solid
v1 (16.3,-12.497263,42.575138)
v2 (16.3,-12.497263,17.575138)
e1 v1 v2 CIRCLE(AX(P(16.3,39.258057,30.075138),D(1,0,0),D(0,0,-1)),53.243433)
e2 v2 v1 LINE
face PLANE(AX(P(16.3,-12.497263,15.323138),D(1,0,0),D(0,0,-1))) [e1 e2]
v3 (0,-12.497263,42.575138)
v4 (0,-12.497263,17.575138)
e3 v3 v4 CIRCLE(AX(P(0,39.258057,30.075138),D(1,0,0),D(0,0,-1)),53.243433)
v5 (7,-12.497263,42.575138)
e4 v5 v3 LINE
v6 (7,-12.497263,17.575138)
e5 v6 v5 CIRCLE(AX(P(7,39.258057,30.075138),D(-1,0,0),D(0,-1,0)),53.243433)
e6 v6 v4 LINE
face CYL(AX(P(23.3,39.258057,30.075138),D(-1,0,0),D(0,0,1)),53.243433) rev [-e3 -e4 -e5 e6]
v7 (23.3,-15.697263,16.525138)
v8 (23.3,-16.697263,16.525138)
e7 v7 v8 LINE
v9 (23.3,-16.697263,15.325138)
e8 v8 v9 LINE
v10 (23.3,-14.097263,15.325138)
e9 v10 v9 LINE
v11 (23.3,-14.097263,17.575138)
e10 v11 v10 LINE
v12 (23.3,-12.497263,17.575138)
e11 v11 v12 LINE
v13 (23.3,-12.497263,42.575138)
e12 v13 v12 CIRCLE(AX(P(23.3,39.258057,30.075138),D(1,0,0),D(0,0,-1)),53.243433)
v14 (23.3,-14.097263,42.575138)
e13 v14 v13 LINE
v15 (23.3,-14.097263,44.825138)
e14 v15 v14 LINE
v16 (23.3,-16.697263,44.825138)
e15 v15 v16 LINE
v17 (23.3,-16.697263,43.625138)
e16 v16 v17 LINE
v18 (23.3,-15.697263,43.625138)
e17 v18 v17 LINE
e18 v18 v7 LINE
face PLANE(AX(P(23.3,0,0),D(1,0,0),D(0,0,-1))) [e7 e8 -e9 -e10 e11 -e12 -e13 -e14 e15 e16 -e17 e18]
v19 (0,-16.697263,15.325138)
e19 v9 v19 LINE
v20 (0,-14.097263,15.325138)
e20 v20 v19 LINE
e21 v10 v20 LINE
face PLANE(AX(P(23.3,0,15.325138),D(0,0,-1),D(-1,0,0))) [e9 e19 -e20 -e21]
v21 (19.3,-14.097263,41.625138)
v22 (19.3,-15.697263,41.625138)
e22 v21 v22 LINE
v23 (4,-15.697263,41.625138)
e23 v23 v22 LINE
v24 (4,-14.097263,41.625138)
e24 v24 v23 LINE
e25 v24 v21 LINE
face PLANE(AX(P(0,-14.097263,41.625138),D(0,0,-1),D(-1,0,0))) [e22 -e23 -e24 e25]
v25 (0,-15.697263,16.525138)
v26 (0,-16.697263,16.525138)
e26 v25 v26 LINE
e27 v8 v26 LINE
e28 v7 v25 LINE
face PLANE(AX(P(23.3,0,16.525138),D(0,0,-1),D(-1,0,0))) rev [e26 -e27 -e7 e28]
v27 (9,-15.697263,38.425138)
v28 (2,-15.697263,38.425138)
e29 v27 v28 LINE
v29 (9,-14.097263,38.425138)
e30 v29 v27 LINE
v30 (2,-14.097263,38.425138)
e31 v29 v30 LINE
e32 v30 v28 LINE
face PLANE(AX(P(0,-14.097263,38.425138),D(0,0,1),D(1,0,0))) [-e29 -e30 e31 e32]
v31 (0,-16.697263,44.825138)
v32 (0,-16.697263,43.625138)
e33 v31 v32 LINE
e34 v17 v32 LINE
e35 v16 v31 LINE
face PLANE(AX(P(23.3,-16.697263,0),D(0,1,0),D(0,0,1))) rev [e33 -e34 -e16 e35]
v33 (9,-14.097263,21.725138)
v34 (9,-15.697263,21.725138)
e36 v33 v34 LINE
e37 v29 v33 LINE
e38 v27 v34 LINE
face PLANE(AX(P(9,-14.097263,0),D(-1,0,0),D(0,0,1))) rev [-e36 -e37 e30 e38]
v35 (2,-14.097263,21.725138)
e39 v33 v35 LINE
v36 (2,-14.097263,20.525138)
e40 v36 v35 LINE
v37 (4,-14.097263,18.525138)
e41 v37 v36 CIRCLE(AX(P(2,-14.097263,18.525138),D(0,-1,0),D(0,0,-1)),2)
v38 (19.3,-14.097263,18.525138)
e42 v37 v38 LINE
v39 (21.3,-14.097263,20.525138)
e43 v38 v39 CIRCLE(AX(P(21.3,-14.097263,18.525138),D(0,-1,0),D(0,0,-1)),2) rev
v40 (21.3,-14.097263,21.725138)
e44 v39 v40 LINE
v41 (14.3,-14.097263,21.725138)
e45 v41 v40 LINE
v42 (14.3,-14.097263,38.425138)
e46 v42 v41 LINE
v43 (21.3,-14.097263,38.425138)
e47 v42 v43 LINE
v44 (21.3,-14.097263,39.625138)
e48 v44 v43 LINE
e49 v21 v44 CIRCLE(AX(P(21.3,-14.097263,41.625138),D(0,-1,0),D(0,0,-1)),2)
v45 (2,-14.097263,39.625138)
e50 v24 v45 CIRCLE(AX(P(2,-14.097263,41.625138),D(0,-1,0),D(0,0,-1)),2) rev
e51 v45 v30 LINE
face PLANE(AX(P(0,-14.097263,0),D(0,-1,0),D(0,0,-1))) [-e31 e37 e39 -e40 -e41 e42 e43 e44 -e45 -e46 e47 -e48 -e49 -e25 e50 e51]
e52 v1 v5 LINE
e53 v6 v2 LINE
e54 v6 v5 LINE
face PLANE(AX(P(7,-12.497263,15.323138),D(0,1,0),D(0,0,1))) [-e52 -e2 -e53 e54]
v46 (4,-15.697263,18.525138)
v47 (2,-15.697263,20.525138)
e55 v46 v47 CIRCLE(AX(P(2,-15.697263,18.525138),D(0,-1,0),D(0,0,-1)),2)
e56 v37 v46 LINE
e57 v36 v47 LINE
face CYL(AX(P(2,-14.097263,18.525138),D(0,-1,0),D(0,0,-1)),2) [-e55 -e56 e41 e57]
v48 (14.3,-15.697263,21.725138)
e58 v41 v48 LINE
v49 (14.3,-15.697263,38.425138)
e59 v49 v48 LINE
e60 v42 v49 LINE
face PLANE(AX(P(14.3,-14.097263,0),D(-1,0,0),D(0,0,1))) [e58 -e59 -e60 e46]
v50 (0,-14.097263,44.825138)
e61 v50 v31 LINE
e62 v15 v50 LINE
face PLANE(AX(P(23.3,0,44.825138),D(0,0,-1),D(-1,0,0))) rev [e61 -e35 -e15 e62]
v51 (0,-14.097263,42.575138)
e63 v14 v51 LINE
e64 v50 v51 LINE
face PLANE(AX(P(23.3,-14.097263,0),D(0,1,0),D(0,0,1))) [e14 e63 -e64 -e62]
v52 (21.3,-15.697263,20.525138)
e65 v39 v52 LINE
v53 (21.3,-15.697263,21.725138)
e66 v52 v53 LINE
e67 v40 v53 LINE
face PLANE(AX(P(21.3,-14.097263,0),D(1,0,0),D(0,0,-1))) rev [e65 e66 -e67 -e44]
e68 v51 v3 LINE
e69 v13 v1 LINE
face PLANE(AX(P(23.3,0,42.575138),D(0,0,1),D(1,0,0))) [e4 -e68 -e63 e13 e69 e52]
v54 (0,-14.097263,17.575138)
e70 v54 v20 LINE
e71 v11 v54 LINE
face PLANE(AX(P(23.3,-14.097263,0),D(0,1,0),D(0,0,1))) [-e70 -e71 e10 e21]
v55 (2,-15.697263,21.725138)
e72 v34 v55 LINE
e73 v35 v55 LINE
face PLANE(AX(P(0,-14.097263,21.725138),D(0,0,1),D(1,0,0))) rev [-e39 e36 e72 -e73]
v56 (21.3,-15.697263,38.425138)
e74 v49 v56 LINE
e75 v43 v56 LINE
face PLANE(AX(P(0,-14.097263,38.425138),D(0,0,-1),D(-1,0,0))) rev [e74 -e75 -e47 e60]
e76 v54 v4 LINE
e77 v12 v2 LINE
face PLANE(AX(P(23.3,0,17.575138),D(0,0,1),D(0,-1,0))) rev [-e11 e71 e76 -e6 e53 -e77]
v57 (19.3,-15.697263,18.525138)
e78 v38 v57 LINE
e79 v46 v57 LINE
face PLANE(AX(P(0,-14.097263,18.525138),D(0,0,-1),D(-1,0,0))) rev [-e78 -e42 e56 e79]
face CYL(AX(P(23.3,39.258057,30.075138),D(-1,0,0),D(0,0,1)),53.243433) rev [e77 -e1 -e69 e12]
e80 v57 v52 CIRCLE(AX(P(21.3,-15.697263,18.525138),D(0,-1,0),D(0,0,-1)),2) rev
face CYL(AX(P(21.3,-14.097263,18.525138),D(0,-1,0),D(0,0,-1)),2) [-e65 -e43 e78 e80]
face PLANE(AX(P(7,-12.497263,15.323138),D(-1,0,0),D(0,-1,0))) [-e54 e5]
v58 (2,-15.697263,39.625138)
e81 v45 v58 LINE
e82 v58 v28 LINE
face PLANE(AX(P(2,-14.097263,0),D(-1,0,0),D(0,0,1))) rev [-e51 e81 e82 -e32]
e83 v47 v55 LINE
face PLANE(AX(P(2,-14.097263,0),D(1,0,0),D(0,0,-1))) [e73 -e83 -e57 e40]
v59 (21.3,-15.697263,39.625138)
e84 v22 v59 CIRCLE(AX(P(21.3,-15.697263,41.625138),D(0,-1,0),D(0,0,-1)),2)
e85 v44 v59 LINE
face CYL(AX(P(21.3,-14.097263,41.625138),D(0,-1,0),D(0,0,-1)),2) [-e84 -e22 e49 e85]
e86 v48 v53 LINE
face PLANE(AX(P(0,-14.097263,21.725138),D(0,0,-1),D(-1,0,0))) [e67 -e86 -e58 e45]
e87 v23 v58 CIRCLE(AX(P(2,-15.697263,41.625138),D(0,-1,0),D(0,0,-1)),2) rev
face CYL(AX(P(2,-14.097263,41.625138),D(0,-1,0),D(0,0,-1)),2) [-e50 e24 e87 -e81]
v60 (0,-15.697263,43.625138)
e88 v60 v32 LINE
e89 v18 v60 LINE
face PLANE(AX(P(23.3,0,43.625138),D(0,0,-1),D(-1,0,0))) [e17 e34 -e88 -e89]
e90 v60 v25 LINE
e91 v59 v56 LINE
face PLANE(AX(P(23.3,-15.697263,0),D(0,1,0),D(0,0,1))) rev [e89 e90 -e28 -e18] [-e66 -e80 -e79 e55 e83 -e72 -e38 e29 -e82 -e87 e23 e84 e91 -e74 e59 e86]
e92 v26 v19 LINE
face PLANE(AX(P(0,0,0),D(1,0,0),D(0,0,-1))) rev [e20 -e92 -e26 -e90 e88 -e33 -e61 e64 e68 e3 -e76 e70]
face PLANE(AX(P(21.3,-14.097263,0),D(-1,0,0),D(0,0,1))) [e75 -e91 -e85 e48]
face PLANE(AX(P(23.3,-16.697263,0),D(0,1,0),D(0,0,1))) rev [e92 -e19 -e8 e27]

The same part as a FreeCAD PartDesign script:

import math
import FreeCAD as App
import Part
import Sketcher

doc = App.newDocument("Part")
body = doc.addObject("PartDesign::Body", "Body")

# Sketch on YZ plane
sketch1 = body.newObject("Sketcher::SketchObject", "Sketch")
sketch1.AttachmentSupport = (doc.getObject("YZ_Plane"), [""])
sketch1.MapMode = "FlatFace"
sketch1.addGeometry([
    Part.LineSegment(App.Vector(-16.7, 43.6, 0), App.Vector(-15.7, 43.6, 0)),  # 0
    Part.LineSegment(App.Vector(-15.7, 43.6, 0), App.Vector(-15.7, 16.5, 0)),  # 1
    Part.LineSegment(App.Vector(-15.7, 16.5, 0), App.Vector(-16.7, 16.5, 0)),  # 2
    Part.LineSegment(App.Vector(-16.7, 16.5, 0), App.Vector(-16.7, 15.3, 0)),  # 3
    Part.LineSegment(App.Vector(-16.7, 15.3, 0), App.Vector(-14.1, 15.3, 0)),  # 4
    Part.LineSegment(App.Vector(-14.1, 15.3, 0), App.Vector(-14.1, 17.6, 0)),  # 5
    Part.LineSegment(App.Vector(-14.1, 17.6, 0), App.Vector(-12.5, 17.6, 0)),  # 6
    Part.ArcOfCircle(Part.Circle(App.Vector(39.3, 30.1, 0), App.Vector(0, 0, 1), 53.2), math.radians(166), math.radians(194)),  # 7
    Part.LineSegment(App.Vector(-12.5, 42.6, 0), App.Vector(-14.1, 42.6, 0)),  # 8
    Part.LineSegment(App.Vector(-14.1, 42.6, 0), App.Vector(-14.1, 44.8, 0)),  # 9
    Part.LineSegment(App.Vector(-14.1, 44.8, 0), App.Vector(-16.7, 44.8, 0)),  # 10
    Part.LineSegment(App.Vector(-16.7, 44.8, 0), App.Vector(-16.7, 43.6, 0)),  # 11
], False)
sketch1.addConstraint([
    Sketcher.Constraint("Coincident", 0, 2, 1, 1),
    Sketcher.Constraint("Coincident", 1, 2, 2, 1),
    Sketcher.Constraint("Coincident", 2, 2, 3, 1),
    Sketcher.Constraint("Coincident", 3, 2, 4, 1),
    Sketcher.Constraint("Coincident", 4, 2, 5, 1),
    Sketcher.Constraint("Coincident", 5, 2, 6, 1),
    Sketcher.Constraint("Coincident", 6, 2, 7, 2),
    Sketcher.Constraint("Coincident", 7, 1, 8, 1),
    Sketcher.Constraint("Coincident", 8, 2, 9, 1),
    Sketcher.Constraint("Coincident", 9, 2, 10, 1),
    Sketcher.Constraint("Coincident", 10, 2, 11, 1),
    Sketcher.Constraint("Coincident", 11, 2, 0, 1),
    Sketcher.Constraint("Horizontal", 0),
    Sketcher.Constraint("Vertical", 1),
    Sketcher.Constraint("Horizontal", 2),
    Sketcher.Constraint("Vertical", 3),
    Sketcher.Constraint("Horizontal", 4),
    Sketcher.Constraint("Vertical", 5),
    Sketcher.Constraint("Horizontal", 6),
    Sketcher.Constraint("Horizontal", 8),
    Sketcher.Constraint("Vertical", 9),
    Sketcher.Constraint("Horizontal", 10),
    Sketcher.Constraint("Vertical", 11),
    Sketcher.Constraint("Vertical", 6, 2, 7, 1),
    Sketcher.Constraint("Vertical", 5, 2, 8, 2),
    Sketcher.Constraint("Vertical", 3, 2, 10, 2),
    Sketcher.Constraint("Equal", 5, 9),
    Sketcher.Constraint("Equal", 3, 11),
    Sketcher.Constraint("DistanceX", 0, 1, 0, 2, 1.0),
    Sketcher.Constraint("DistanceX", 4, 1, 4, 2, 2.6),
    Sketcher.Constraint("DistanceX", 6, 1, 6, 2, 1.6),
    Sketcher.Constraint("DistanceY", 1, 2, 1, 1, 27.1),
    Sketcher.Constraint("DistanceY", 3, 2, 3, 1, 1.2),
    Sketcher.Constraint("DistanceY", 6, 2, 7, 1, 25.0),
    Sketcher.Constraint("Radius", 7, 53.243433),
    Sketcher.Constraint("DistanceX", -1, 1, 7, 3, 39.258057),
    Sketcher.Constraint("DistanceY", -1, 1, 7, 3, 30.075138),
])
pad1 = body.newObject("PartDesign::Pad", "Pad")
pad1.Profile = sketch1
pad1.Length = 23.3

# Sketch on XY plane
sketch2 = body.newObject("Sketcher::SketchObject", "Sketch001")
sketch2.AttachmentSupport = (doc.getObject("XY_Plane"), [""])
sketch2.MapMode = "FlatFace"
sketch2.AttachmentOffset = App.Placement(App.Vector(0, 0, 42.575138), App.Rotation())
sketch2.addGeometry([
    Part.LineSegment(App.Vector(7, -12.5, 0), App.Vector(7, -14.1, 0)),
    Part.LineSegment(App.Vector(7, -14.1, 0), App.Vector(16.3, -14.1, 0)),
    Part.LineSegment(App.Vector(16.3, -14.1, 0), App.Vector(16.3, -12.5, 0)),
    Part.LineSegment(App.Vector(16.3, -12.5, 0), App.Vector(7, -12.5, 0)),
], False)
sketch2.addConstraint([
    Sketcher.Constraint("Coincident", 0, 2, 1, 1),
    Sketcher.Constraint("Coincident", 1, 2, 2, 1),
    Sketcher.Constraint("Coincident", 2, 2, 3, 1),
    Sketcher.Constraint("Coincident", 3, 2, 0, 1),
    Sketcher.Constraint("Vertical", 0),
    Sketcher.Constraint("Horizontal", 1),
    Sketcher.Constraint("Vertical", 2),
    Sketcher.Constraint("Horizontal", 3),
    Sketcher.Constraint("DistanceX", 1, 1, 1, 2, 9.3),
    Sketcher.Constraint("DistanceY", 0, 2, 0, 1, 1.6),
    Sketcher.Constraint("DistanceX", -1, 1, 0, 2, 7.0),
    Sketcher.Constraint("DistanceY", 0, 2, -1, 1, 14.097263),
])
pad2 = body.newObject("PartDesign::Pad", "Pad001")
pad2.Profile = sketch2
pad2.Length = 25
pad2.Reversed = True

# Sketch on XZ plane
sketch3 = body.newObject("Sketcher::SketchObject", "Sketch002")
sketch3.AttachmentSupport = (doc.getObject("XZ_Plane"), [""])
sketch3.MapMode = "FlatFace"
sketch3.AttachmentOffset = App.Placement(App.Vector(0, 0, 15.697263), App.Rotation())
sketch3.addGeometry([
    Part.ArcOfCircle(Part.Circle(App.Vector(21.3, 41.6, 0), App.Vector(0, 0, 1), 2), math.radians(-180), math.radians(-90)),  # 0
    Part.LineSegment(App.Vector(19.3, 41.6, 0), App.Vector(4, 41.6, 0)),  # 1
    Part.ArcOfCircle(Part.Circle(App.Vector(2, 41.6, 0), App.Vector(0, 0, 1), 2), math.radians(-90), math.radians(0)),  # 2
    Part.LineSegment(App.Vector(2, 39.6, 0), App.Vector(2, 38.4, 0)),  # 3
    Part.LineSegment(App.Vector(2, 38.4, 0), App.Vector(9, 38.4, 0)),  # 4
    Part.LineSegment(App.Vector(9, 38.4, 0), App.Vector(9, 21.7, 0)),  # 5
    Part.LineSegment(App.Vector(9, 21.7, 0), App.Vector(2, 21.7, 0)),  # 6
    Part.LineSegment(App.Vector(2, 21.7, 0), App.Vector(2, 20.5, 0)),  # 7
    Part.ArcOfCircle(Part.Circle(App.Vector(2, 18.5, 0), App.Vector(0, 0, 1), 2), math.radians(0), math.radians(90)),  # 8
    Part.LineSegment(App.Vector(4, 18.5, 0), App.Vector(19.3, 18.5, 0)),  # 9
    Part.ArcOfCircle(Part.Circle(App.Vector(21.3, 18.5, 0), App.Vector(0, 0, 1), 2), math.radians(90), math.radians(180)),  # 10
    Part.LineSegment(App.Vector(21.3, 20.5, 0), App.Vector(21.3, 21.7, 0)),  # 11
    Part.LineSegment(App.Vector(21.3, 21.7, 0), App.Vector(14.3, 21.7, 0)),  # 12
    Part.LineSegment(App.Vector(14.3, 21.7, 0), App.Vector(14.3, 38.4, 0)),  # 13
    Part.LineSegment(App.Vector(14.3, 38.4, 0), App.Vector(21.3, 38.4, 0)),  # 14
    Part.LineSegment(App.Vector(21.3, 38.4, 0), App.Vector(21.3, 39.6, 0)),  # 15
], False)
sketch3.addConstraint([
    Sketcher.Constraint("Coincident", 0, 1, 1, 1),
    Sketcher.Constraint("Coincident", 1, 2, 2, 2),
    Sketcher.Constraint("Coincident", 2, 1, 3, 1),
    Sketcher.Constraint("Coincident", 3, 2, 4, 1),
    Sketcher.Constraint("Coincident", 4, 2, 5, 1),
    Sketcher.Constraint("Coincident", 5, 2, 6, 1),
    Sketcher.Constraint("Coincident", 6, 2, 7, 1),
    Sketcher.Constraint("Coincident", 7, 2, 8, 2),
    Sketcher.Constraint("Coincident", 8, 1, 9, 1),
    Sketcher.Constraint("Coincident", 9, 2, 10, 2),
    Sketcher.Constraint("Coincident", 10, 1, 11, 1),
    Sketcher.Constraint("Coincident", 11, 2, 12, 1),
    Sketcher.Constraint("Coincident", 12, 2, 13, 1),
    Sketcher.Constraint("Coincident", 13, 2, 14, 1),
    Sketcher.Constraint("Coincident", 14, 2, 15, 1),
    Sketcher.Constraint("Coincident", 15, 2, 0, 2),
    Sketcher.Constraint("Horizontal", 1),
    Sketcher.Constraint("Vertical", 3),
    Sketcher.Constraint("Horizontal", 4),
    Sketcher.Constraint("Vertical", 5),
    Sketcher.Constraint("Horizontal", 6),
    Sketcher.Constraint("Vertical", 7),
    Sketcher.Constraint("Horizontal", 9),
    Sketcher.Constraint("Vertical", 11),
    Sketcher.Constraint("Horizontal", 12),
    Sketcher.Constraint("Vertical", 13),
    Sketcher.Constraint("Horizontal", 14),
    Sketcher.Constraint("Vertical", 15),
    Sketcher.Constraint("Equal", 0, 2),
    Sketcher.Constraint("Equal", 2, 8),
    Sketcher.Constraint("Equal", 8, 10),
    Sketcher.Constraint("Horizontal", 0, 3, 2, 3),
    Sketcher.Constraint("Horizontal", 8, 3, 10, 3),
    Sketcher.Constraint("Horizontal", 2, 3, 0, 1),
    Sketcher.Constraint("Horizontal", 10, 3, 8, 1),
    Sketcher.Constraint("Horizontal", 6, 2, 11, 2),
    Sketcher.Constraint("Horizontal", 4, 2, 13, 2),
    Sketcher.Constraint("Vertical", 2, 3, 8, 3),
    Sketcher.Constraint("Vertical", 0, 3, 10, 3),
    Sketcher.Constraint("Vertical", 8, 3, 2, 1),
    Sketcher.Constraint("Vertical", 3, 2, 6, 2),
    Sketcher.Constraint("Vertical", 0, 3, 10, 1),
    Sketcher.Constraint("Vertical", 11, 2, 14, 2),
    Sketcher.Constraint("Equal", 6, 12),
    Sketcher.Constraint("Equal", 3, 7),
    Sketcher.Constraint("Radius", 0, 2.0),
    Sketcher.Constraint("DistanceX", 4, 1, 4, 2, 7.0),
    Sketcher.Constraint("DistanceX", 1, 2, 1, 1, 15.3),
    Sketcher.Constraint("DistanceY", 3, 2, 3, 1, 1.2),
    Sketcher.Constraint("DistanceY", 5, 2, 5, 1, 16.7),
    Sketcher.Constraint("DistanceX", -1, 1, 2, 3, 2.0),
    Sketcher.Constraint("DistanceY", -1, 1, 0, 3, 41.625138),
])
pocket1 = body.newObject("PartDesign::Pocket", "Pocket")
pocket1.Profile = sketch3
pocket1.Length = 1.6

doc.recompute()
